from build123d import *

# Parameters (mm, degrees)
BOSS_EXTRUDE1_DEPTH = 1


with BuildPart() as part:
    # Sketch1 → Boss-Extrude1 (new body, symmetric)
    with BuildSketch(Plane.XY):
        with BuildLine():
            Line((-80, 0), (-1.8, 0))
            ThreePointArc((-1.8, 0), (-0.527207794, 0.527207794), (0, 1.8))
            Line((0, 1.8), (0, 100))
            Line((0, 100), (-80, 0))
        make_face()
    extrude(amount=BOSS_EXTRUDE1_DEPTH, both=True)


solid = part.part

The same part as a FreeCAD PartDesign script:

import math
import FreeCAD as App
import Part
import Sketcher

V = App.Vector

doc = App.newDocument("Part")
body = doc.addObject("PartDesign::Body", "Body")

# Sketch on XY plane
sketch1 = body.newObject("Sketcher::SketchObject", "Sketch")
sketch1.AttachmentSupport = (doc.getObject("XY_Plane"), [""])
sketch1.MapMode = "FlatFace"
sketch1.addGeometry(Part.LineSegment(V(-80, 0, 0), V(-1.8, 0, 0)), False)
sketch1.addGeometry(Part.ArcOfCircle(Part.Circle(V(-1.8, 1.8, 0), V(0, 0, 1), 1.8), math.radians(-90), math.radians(0)), False)
sketch1.addGeometry(Part.LineSegment(V(0, 1.8, 0), V(0, 100, 0)), False)
sketch1.addGeometry(Part.LineSegment(V(0, 100, 0), V(-80, 0, 0)), False)
sketch1.addConstraint(Sketcher.Constraint("Tangent", 0, 2, 1, 1))
sketch1.addConstraint(Sketcher.Constraint("Tangent", 1, 2, 2, 1))
sketch1.addConstraint(Sketcher.Constraint("Coincident", 2, 2, 3, 1))
sketch1.addConstraint(Sketcher.Constraint("Coincident", 3, 2, 0, 1))
sketch1.addConstraint(Sketcher.Constraint("Horizontal", 0))
sketch1.addConstraint(Sketcher.Constraint("Vertical", 2))
sketch1.addConstraint(Sketcher.Constraint("PointOnObject", 0, 2, -1))
sketch1.addConstraint(Sketcher.Constraint("PointOnObject", 1, 2, -2))
sketch1.addConstraint(Sketcher.Constraint("Radius", 1, 1.8))
sketch1.addConstraint(Sketcher.Constraint("DistanceX", 0, 1, 0, 2, 78.2))
sketch1.addConstraint(Sketcher.Constraint("DistanceY", 2, 1, 2, 2, 98.2))
pad1 = body.newObject("PartDesign::Pad", "Pad")
pad1.Profile = sketch1
pad1.Length = 2
pad1.Midplane = True

doc.recompute()
